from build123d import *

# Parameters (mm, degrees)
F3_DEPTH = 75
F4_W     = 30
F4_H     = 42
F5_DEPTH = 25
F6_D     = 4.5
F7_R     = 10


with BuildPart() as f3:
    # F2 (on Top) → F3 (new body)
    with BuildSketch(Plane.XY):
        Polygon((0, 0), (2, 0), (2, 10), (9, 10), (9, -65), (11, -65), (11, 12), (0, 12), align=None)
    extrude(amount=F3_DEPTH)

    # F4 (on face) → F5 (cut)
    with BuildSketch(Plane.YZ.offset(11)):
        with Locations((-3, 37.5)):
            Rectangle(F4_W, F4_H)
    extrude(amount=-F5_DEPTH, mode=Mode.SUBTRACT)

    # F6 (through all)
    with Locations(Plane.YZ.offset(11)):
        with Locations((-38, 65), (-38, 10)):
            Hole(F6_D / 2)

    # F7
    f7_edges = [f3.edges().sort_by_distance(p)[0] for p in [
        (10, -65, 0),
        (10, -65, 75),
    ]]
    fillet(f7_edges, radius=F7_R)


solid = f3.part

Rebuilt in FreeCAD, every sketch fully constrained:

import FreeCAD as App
import Part
import Sketcher
from FreeCAD import Vector
Q = App.Units.Quantity


def edges_at(feature, points):
    """Names of the edges that pass closest to the given points."""
    edges = feature.Shape.Edges
    near = lambda p: min(range(len(edges)), key=lambda i: edges[i].distToShape(Part.Vertex(*p))[0])
    return sorted({f"Edge{near(p) + 1}" for p in points})


def add_polygon(sketch, points):
    """Adds a closed chain of lines whose ends are joined by coincident constraints."""
    first, n = sketch.GeometryCount, len(points)
    for a, b in zip(points, points[1:] + points[:1]):
        sketch.addGeometry(Part.LineSegment(App.Vector(*a, 0), App.Vector(*b, 0)), False)
    for i in range(n):
        sketch.addConstraint(Sketcher.Constraint("Coincident", first + i, 2, first + (i + 1) % n, 1))

doc = App.newDocument("Part")
body = doc.addObject("PartDesign::Body", "Body")

# Sketch on XY plane
sketch1 = body.newObject("Sketcher::SketchObject", "Sketch")
sketch1.AttachmentSupport = (doc.getObject("XY_Plane"), [""])
sketch1.MapMode = "FlatFace"
add_polygon(sketch1, [(0, 0), (2, 0), (2, 10), (9, 10), (9, -65), (11, -65), (11, 12), (0, 12)])  # lines 0-7
sketch1.addConstraint([
    Sketcher.Constraint("Horizontal", 0),
    Sketcher.Constraint("Vertical", 1),
    Sketcher.Constraint("Horizontal", 2),
    Sketcher.Constraint("Vertical", 3),
    Sketcher.Constraint("Horizontal", 4),
    Sketcher.Constraint("Vertical", 5),
    Sketcher.Constraint("Horizontal", 6),
    Sketcher.Constraint("Vertical", 7),
    Sketcher.Constraint("Coincident", 7, 2, -1, 1),
    Sketcher.Constraint("Equal", 0, 4),
    Sketcher.Constraint("DistanceX", 0, 1, 0, 2, Q("2 mm")),
    Sketcher.Constraint("DistanceX", 2, 1, 2, 2, Q("7 mm")),
    Sketcher.Constraint("DistanceY", 1, 1, 1, 2, Q("10 mm")),
    Sketcher.Constraint("DistanceY", 3, 2, 3, 1, Q("75 mm")),
    Sketcher.Constraint("DistanceY", 5, 1, 5, 2, Q("77 mm")),
])
pad1 = body.newObject("PartDesign::Pad", "Pad")
pad1.Profile = sketch1
pad1.Length = 75

# Sketch on YZ plane
sketch2 = body.newObject("Sketcher::SketchObject", "Sketch001")
sketch2.AttachmentSupport = (doc.getObject("YZ_Plane"), [""])
sketch2.MapMode = "FlatFace"
sketch2.AttachmentOffset = App.Placement(Vector(0, 0, 11), App.Rotation())
add_polygon(sketch2, [(-18, 58), (-18, 16), (12, 16), (12, 58)])  # lines 0-3
sketch2.addConstraint([
    Sketcher.Constraint("Vertical", 0),
    Sketcher.Constraint("Horizontal", 1),
    Sketcher.Constraint("Vertical", 2),
    Sketcher.Constraint("Horizontal", 3),
    Sketcher.Constraint("DistanceX", 1, 1, 1, 2, Q("30 mm")),
    Sketcher.Constraint("DistanceY", 0, 2, 0, 1, Q("42 mm")),
    Sketcher.Constraint("DistanceX", 0, 2, -1, 1, Q("18 mm")),
    Sketcher.Constraint("DistanceY", -1, 1, 0, 2, Q("16.5 mm")),
])
pocket1 = body.newObject("PartDesign::Pocket", "Pocket")
pocket1.Profile = sketch2
pocket1.Length = 25

# Sketch on YZ plane
sketch3 = body.newObject("Sketcher::SketchObject", "Sketch002")
sketch3.AttachmentSupport = (doc.getObject("YZ_Plane"), [""])
sketch3.MapMode = "FlatFace"
sketch3.AttachmentOffset = App.Placement(Vector(0, 0, 11), App.Rotation())
sketch3.addGeometry([
    Part.Circle(Vector(-38, 65, 0), Vector(0, 0, 1), 2.2),
    Part.Circle(Vector(-38, 10, 0), Vector(0, 0, 1), 2.2),
], False)
sketch3.addConstraint([
    Sketcher.Constraint("Equal", 0, 1),
    Sketcher.Constraint("Vertical", 0, 3, 1, 3),
    Sketcher.Constraint("Diameter", 0, Q("4.5 mm")),
    Sketcher.Constraint("DistanceX", 0, 3, -1, 1, Q("38 mm")),
    Sketcher.Constraint("DistanceY", -1, 1, 0, 3, Q("65 mm")),
    Sketcher.Constraint("DistanceY", -1, 1, 1, 3, Q("10 mm")),
])
doc.recompute()
hole = body.newObject("PartDesign::Hole", "Hole")
hole.Profile = sketch3
hole.ThreadType = "None"
hole.Diameter = 4.5
hole.DepthType = "ThroughAll"
doc.recompute()

fillet = body.newObject("PartDesign::Fillet", "Fillet")
fillet.Base = (hole, edges_at(hole, [(10, -65, 0), (10, -65, 75)]))
fillet.Radius = 10

doc.recompute()
